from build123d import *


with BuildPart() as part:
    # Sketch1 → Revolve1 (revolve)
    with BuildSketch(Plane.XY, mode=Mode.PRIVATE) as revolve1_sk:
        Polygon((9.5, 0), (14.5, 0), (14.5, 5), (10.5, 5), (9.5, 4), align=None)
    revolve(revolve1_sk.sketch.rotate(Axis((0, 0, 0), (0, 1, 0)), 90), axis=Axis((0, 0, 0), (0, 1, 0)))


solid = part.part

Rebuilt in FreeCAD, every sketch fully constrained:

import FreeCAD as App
import Part
import Sketcher
from FreeCAD import Vector
Q = App.Units.Quantity

doc = App.newDocument("Part")
params = doc.addObject("Spreadsheet::Sheet", "Params")
for row, (alias, value) in enumerate([
    ("sketch1_width", "5 mm"),
    ("sketch1_width2", "4 mm"),
    ("revolution_angle", "360 deg"),
], start=1):
    params.set(f"A{row}", alias)
    params.set(f"B{row}", "=" + value)
    params.setAlias(f"B{row}", alias)

body = doc.addObject("PartDesign::Body", "Body")

sketch1 = body.newObject("Sketcher::SketchObject", "Sketch")
sketch1.AttachmentSupport = (doc.getObject("XY_Plane"), [""])
sketch1.MapMode = "FlatFace"
sketch1.addGeometry([
    Part.LineSegment(Vector(9.5, 0, 0), Vector(14.5, 0, 0)),
    Part.LineSegment(Vector(14.5, 0, 0), Vector(14.5, 5, 0)),
    Part.LineSegment(Vector(14.5, 5, 0), Vector(10.5, 5, 0)),
    Part.LineSegment(Vector(10.5, 5, 0), Vector(9.5, 4, 0)),
    Part.LineSegment(Vector(9.5, 4, 0), Vector(9.5, 0, 0)),
], False)
sketch1.addConstraint([
    Sketcher.Constraint("Coincident", 0, 2, 1, 1),
    Sketcher.Constraint("Coincident", 1, 2, 2, 1),
    Sketcher.Constraint("Coincident", 2, 2, 3, 1),
    Sketcher.Constraint("Coincident", 3, 2, 4, 1),
    Sketcher.Constraint("Coincident", 4, 2, 0, 1),
    Sketcher.Constraint("Horizontal", 0),
    Sketcher.Constraint("Vertical", 1),
    Sketcher.Constraint("Horizontal", 2),
    Sketcher.Constraint("Vertical", 4),
    Sketcher.Constraint("PointOnObject", 0, 2, -1),
    Sketcher.Constraint("Equal", 0, 1),
    Sketcher.Constraint("Equal", 2, 4),
    Sketcher.Constraint("DistanceX", 0, 1, 0, 2, Q("5 mm")),
    Sketcher.Constraint("DistanceX", 2, 2, 2, 1, Q("4 mm")),
    Sketcher.Constraint("DistanceX", -1, 1, 0, 2, Q("14.5 mm")),
])
sketch1.setExpression("Constraints[12]", "Params.sketch1_width")
sketch1.setExpression("Constraints[13]", "Params.sketch1_width2")
revolution = body.newObject("PartDesign::Revolution", "Revolution")
revolution.Profile = sketch1
revolution.ReferenceAxis = (sketch1, ["V_Axis"])
revolution.setExpression("Angle", "Params.revolution_angle")

doc.recompute()
